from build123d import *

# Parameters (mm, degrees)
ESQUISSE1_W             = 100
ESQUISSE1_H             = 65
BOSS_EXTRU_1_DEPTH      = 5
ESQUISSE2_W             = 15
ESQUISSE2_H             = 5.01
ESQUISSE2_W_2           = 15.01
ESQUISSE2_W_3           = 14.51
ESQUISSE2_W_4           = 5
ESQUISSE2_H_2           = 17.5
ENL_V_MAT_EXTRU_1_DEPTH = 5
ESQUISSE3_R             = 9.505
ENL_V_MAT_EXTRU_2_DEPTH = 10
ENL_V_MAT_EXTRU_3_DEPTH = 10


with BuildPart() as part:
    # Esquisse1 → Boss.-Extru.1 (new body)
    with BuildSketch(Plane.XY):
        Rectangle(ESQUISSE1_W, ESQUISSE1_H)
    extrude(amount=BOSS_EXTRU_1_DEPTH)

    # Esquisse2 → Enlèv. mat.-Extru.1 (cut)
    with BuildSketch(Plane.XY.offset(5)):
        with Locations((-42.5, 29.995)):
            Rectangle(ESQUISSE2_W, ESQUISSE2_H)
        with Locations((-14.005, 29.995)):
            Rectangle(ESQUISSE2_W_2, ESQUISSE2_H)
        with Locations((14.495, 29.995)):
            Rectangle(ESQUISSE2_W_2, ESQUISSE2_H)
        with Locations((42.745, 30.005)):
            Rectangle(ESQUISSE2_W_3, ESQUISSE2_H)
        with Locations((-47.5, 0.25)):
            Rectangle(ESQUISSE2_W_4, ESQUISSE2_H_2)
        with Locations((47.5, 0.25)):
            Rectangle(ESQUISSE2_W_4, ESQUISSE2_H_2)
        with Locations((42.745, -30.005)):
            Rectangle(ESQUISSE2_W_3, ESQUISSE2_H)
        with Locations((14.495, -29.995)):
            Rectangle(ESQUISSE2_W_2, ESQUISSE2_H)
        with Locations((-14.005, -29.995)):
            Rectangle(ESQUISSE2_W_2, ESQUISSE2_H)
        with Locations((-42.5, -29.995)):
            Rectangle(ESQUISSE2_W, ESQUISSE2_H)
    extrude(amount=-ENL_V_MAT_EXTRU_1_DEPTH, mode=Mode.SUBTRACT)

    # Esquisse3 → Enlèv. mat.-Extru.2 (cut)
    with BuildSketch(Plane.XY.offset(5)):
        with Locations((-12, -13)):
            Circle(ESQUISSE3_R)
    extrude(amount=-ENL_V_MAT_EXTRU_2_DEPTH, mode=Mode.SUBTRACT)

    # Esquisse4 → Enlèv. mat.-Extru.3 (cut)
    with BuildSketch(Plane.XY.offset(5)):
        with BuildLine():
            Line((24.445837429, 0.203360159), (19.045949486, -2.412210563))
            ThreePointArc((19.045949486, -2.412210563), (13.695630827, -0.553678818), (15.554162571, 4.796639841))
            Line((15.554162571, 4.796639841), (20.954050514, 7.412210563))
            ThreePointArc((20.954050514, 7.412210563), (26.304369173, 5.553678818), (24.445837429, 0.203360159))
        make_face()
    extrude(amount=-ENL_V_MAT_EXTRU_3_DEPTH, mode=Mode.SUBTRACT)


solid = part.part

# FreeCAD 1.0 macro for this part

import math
import FreeCAD as App
import Part
import Sketcher


def add_polygon(sketch, points):
    """Adds a closed chain of lines whose ends are joined by coincident constraints."""
    first, n = sketch.GeometryCount, len(points)
    for a, b in zip(points, points[1:] + points[:1]):
        sketch.addGeometry(Part.LineSegment(App.Vector(*a, 0), App.Vector(*b, 0)), False)
    for i in range(n):
        sketch.addConstraint(Sketcher.Constraint("Coincident", first + i, 2, first + (i + 1) % n, 1))

doc = App.newDocument("Part")
body = doc.addObject("PartDesign::Body", "Body")

# Sketch on XY plane
sketch1 = body.newObject("Sketcher::SketchObject", "Sketch")
sketch1.AttachmentSupport = (doc.getObject("XY_Plane"), [""])
sketch1.MapMode = "FlatFace"
add_polygon(sketch1, [(-50, 32.5), (-50, -32.5), (50, -32.5), (50, 32.5)])  # lines 0-3
sketch1.addConstraint(Sketcher.Constraint("Vertical", 0))
sketch1.addConstraint(Sketcher.Constraint("Horizontal", 1))
sketch1.addConstraint(Sketcher.Constraint("Vertical", 2))
sketch1.addConstraint(Sketcher.Constraint("Horizontal", 3))
sketch1.addConstraint(Sketcher.Constraint("Symmetric", 0, 2, 2, 2, -1, 1))
sketch1.addConstraint(Sketcher.Constraint("DistanceX", 1, 1, 1, 2, 100.0))
sketch1.addConstraint(Sketcher.Constraint("DistanceY", 0, 2, 0, 1, 65.0))
pad1 = body.newObject("PartDesign::Pad", "Pad")
pad1.Profile = sketch1
pad1.Length = 5

# Sketch on XY plane
sketch2 = body.newObject("Sketcher::SketchObject", "Sketch001")
sketch2.AttachmentSupport = (doc.getObject("XY_Plane"), [""])
sketch2.MapMode = "FlatFace"
sketch2.AttachmentOffset = App.Placement(App.Vector(0, 0, 5), App.Rotation())
add_polygon(sketch2, [(-50, 32.5), (-50, 27.49), (-35, 27.49), (-35, 32.5)])  # lines 0-3
add_polygon(sketch2, [(-21.51, 32.5), (-21.51, 27.49), (-6.5, 27.49), (-6.5, 32.5)])  # lines 4-7
add_polygon(sketch2, [(6.99, 32.5), (6.99, 27.49), (22, 27.49), (22, 32.5)])  # lines 8-11
add_polygon(sketch2, [(35.49, 32.51), (35.49, 27.5), (50, 27.5), (50, 32.51)])  # lines 12-15
add_polygon(sketch2, [(-50, 9), (-50, -8.5), (-45, -8.5), (-45, 9)])  # lines 16-19
add_polygon(sketch2, [(45, 9), (45, -8.5), (50, -8.5), (50, 9)])  # lines 20-23
add_polygon(sketch2, [(35.49, -27.5), (35.49, -32.51), (50, -32.51), (50, -27.5)])  # lines 24-27
add_polygon(sketch2, [(6.99, -27.49), (6.99, -32.5), (22, -32.5), (22, -27.49)])  # lines 28-31
add_polygon(sketch2, [(-21.51, -27.49), (-21.51, -32.5), (-6.5, -32.5), (-6.5, -27.49)])  # lines 32-35
add_polygon(sketch2, [(-50, -27.49), (-50, -32.5), (-35, -32.5), (-35, -27.49)])  # lines 36-39
sketch2.addConstraint(Sketcher.Constraint("Vertical", 0))
sketch2.addConstraint(Sketcher.Constraint("Horizontal", 1))
sketch2.addConstraint(Sketcher.Constraint("Vertical", 2))
sketch2.addConstraint(Sketcher.Constraint("Horizontal", 3))
sketch2.addConstraint(Sketcher.Constraint("Vertical", 4))
sketch2.addConstraint(Sketcher.Constraint("Horizontal", 5))
sketch2.addConstraint(Sketcher.Constraint("Vertical", 6))
sketch2.addConstraint(Sketcher.Constraint("Horizontal", 7))
sketch2.addConstraint(Sketcher.Constraint("Vertical", 8))
sketch2.addConstraint(Sketcher.Constraint("Horizontal", 9))
sketch2.addConstraint(Sketcher.Constraint("Vertical", 10))
sketch2.addConstraint(Sketcher.Constraint("Horizontal", 11))
sketch2.addConstraint(Sketcher.Constraint("Vertical", 12))
sketch2.addConstraint(Sketcher.Constraint("Horizontal", 13))
sketch2.addConstraint(Sketcher.Constraint("Vertical", 14))
sketch2.addConstraint(Sketcher.Constraint("Horizontal", 15))
sketch2.addConstraint(Sketcher.Constraint("Vertical", 16))
sketch2.addConstraint(Sketcher.Constraint("Horizontal", 17))
sketch2.addConstraint(Sketcher.Constraint("Vertical", 18))
sketch2.addConstraint(Sketcher.Constraint("Horizontal", 19))
sketch2.addConstraint(Sketcher.Constraint("Vertical", 20))
sketch2.addConstraint(Sketcher.Constraint("Horizontal", 21))
sketch2.addConstraint(Sketcher.Constraint("Vertical", 22))
sketch2.addConstraint(Sketcher.Constraint("Horizontal", 23))
sketch2.addConstraint(Sketcher.Constraint("Vertical", 24))
sketch2.addConstraint(Sketcher.Constraint("Horizontal", 25))
sketch2.addConstraint(Sketcher.Constraint("Vertical", 26))
sketch2.addConstraint(Sketcher.Constraint("Horizontal", 27))
sketch2.addConstraint(Sketcher.Constraint("Vertical", 28))
sketch2.addConstraint(Sketcher.Constraint("Horizontal", 29))
sketch2.addConstraint(Sketcher.Constraint("Vertical", 30))
sketch2.addConstraint(Sketcher.Constraint("Horizontal", 31))
sketch2.addConstraint(Sketcher.Constraint("Vertical", 32))
sketch2.addConstraint(Sketcher.Constraint("Horizontal", 33))
sketch2.addConstraint(Sketcher.Constraint("Vertical", 34))
sketch2.addConstraint(Sketcher.Constraint("Horizontal", 35))
sketch2.addConstraint(Sketcher.Constraint("Vertical", 36))
sketch2.addConstraint(Sketcher.Constraint("Horizontal", 37))
sketch2.addConstraint(Sketcher.Constraint("Vertical", 38))
sketch2.addConstraint(Sketcher.Constraint("Horizontal", 39))
sketch2.addConstraint(Sketcher.Constraint("Symmetric", 17, 2, 20, 2, -2))
sketch2.addConstraint(Sketcher.Constraint("Symmetric", 19, 2, 22, 2, -2))
sketch2.addConstraint(Sketcher.Constraint("Symmetric", 15, 2, 24, 2, -1))
sketch2.addConstraint(Sketcher.Constraint("Symmetric", 13, 2, 26, 2, -1))
sketch2.addConstraint(Sketcher.Constraint("Symmetric", 11, 2, 28, 2, -1))
sketch2.addConstraint(Sketcher.Constraint("Symmetric", 9, 2, 30, 2, -1))
sketch2.addConstraint(Sketcher.Constraint("Symmetric", 7, 2, 32, 2, -1))
sketch2.addConstraint(Sketcher.Constraint("Symmetric", 5, 2, 34, 2, -1))
sketch2.addConstraint(Sketcher.Constraint("Symmetric", 3, 2, 36, 2, -1))
sketch2.addConstraint(Sketcher.Constraint("Symmetric", 1, 2, 38, 2, -1))
sketch2.addConstraint(Sketcher.Constraint("Horizontal", 1, 2, 4, 2))
sketch2.addConstraint(Sketcher.Constraint("Horizontal", 3, 2, 6, 2))
sketch2.addConstraint(Sketcher.Constraint("Horizontal", 5, 2, 8, 2))
sketch2.addConstraint(Sketcher.Constraint("Horizontal", 7, 2, 10, 2))
sketch2.addConstraint(Sketcher.Constraint("Vertical", 3, 2, 16, 2))
sketch2.addConstraint(Sketcher.Constraint("Vertical", 14, 2, 21, 2))
sketch2.addConstraint(Sketcher.Constraint("Equal", 7, 9))
sketch2.addConstraint(Sketcher.Constraint("Equal", 10, 12))
sketch2.addConstraint(Sketcher.Constraint("DistanceX", 1, 1, 1, 2, 15.0))
sketch2.addConstraint(Sketcher.Constraint("DistanceX", 17, 1, 17, 2, 5.0))
sketch2.addConstraint(Sketcher.Constraint("DistanceY", 16, 2, 16, 1, 17.5))
sketch2.addConstraint(Sketcher.Constraint("DistanceX", 0, 2, -1, 1, 50.0))
sketch2.addConstraint(Sketcher.Constraint("DistanceX", -1, 1, 9, 2, 22.0))
sketch2.addConstraint(Sketcher.Constraint("DistanceY", -1, 1, 18, 2, 9.0))
sketch2.addConstraint(Sketcher.Constraint("DistanceY", 12, 2, 10, 2, 5.0))
sketch2.addConstraint(Sketcher.Constraint("DistanceY", 16, 2, 3, 2, 41.0))
sketch2.addConstraint(Sketcher.Constraint("DistanceX", 5, 1, 5, 2, 15.01))
sketch2.addConstraint(Sketcher.Constraint("DistanceX", 13, 1, 13, 2, 14.51))
sketch2.addConstraint(Sketcher.Constraint("DistanceY", 0, 2, 0, 1, 5.01))
sketch2.addConstraint(Sketcher.Constraint("DistanceX", 5, 2, -1, 1, 6.5))
pocket1 = body.newObject("PartDesign::Pocket", "Pocket")
pocket1.Profile = sketch2
pocket1.Length = 5

# Sketch on XY plane
sketch3 = body.newObject("Sketcher::SketchObject", "Sketch002")
sketch3.AttachmentSupport = (doc.getObject("XY_Plane"), [""])
sketch3.MapMode = "FlatFace"
sketch3.AttachmentOffset = App.Placement(App.Vector(0, 0, 5), App.Rotation())
sketch3.addGeometry(Part.Circle(App.Vector(-12, -13, 0), App.Vector(0, 0, 1), 9.505), False)
sketch3.addConstraint(Sketcher.Constraint("Diameter", 0, 19.01))
sketch3.addConstraint(Sketcher.Constraint("DistanceX", 0, 3, -1, 1, 12.0))
sketch3.addConstraint(Sketcher.Constraint("DistanceY", 0, 3, -1, 1, 13.0))
pocket2 = body.newObject("PartDesign::Pocket", "Pocket001")
pocket2.Profile = sketch3
pocket2.Length = 10

# Sketch on XY plane
sketch4 = body.newObject("Sketcher::SketchObject", "Sketch003")
sketch4.AttachmentSupport = (doc.getObject("XY_Plane"), [""])
sketch4.MapMode = "FlatFace"
sketch4.AttachmentOffset = App.Placement(App.Vector(0, 0, 5), App.Rotation())
sketch4.addGeometry(Part.LineSegment(App.Vector(19.045949, -2.412211, 0), App.Vector(24.445837, 0.20336, 0)), False)
sketch4.addGeometry(Part.ArcOfCircle(Part.Circle(App.Vector(22.699944, 3.807785, 0), App.Vector(0, 0, 1), 4.005), math.radians(-64.155612), math.radians(115.844388)), False)
sketch4.addGeometry(Part.LineSegment(App.Vector(20.954051, 7.412211, 0), App.Vector(15.554163, 4.79664, 0)), False)
sketch4.addGeometry(Part.ArcOfCircle(Part.Circle(App.Vector(17.300056, 1.192215, 0), App.Vector(0, 0, 1), 4.005), math.radians(115.844388), math.radians(295.844388)), False)
sketch4.addConstraint(Sketcher.Constraint("Tangent", 0, 2, 1, 1))
sketch4.addConstraint(Sketcher.Constraint("Tangent", 1, 2, 2, 1))
sketch4.addConstraint(Sketcher.Constraint("Tangent", 2, 2, 3, 1))
sketch4.addConstraint(Sketcher.Constraint("Tangent", 3, 2, 0, 1))
sketch4.addConstraint(Sketcher.Constraint("Equal", 1, 3))
sketch4.addConstraint(Sketcher.Constraint("Distance", 0, 6.0))
sketch4.addConstraint(Sketcher.Constraint("Radius", 1, 4.005))
sketch4.addConstraint(Sketcher.Constraint("DistanceX", 3, 2, 1, 2, 1.908101))
sketch4.addConstraint(Sketcher.Constraint("DistanceY", -1, 1, 0, 2, 0.20336))
sketch4.addConstraint(Sketcher.Constraint("DistanceX", -1, 1, 1, 2, 20.954051))
pocket3 = body.newObject("PartDesign::Pocket", "Pocket002")
pocket3.Profile = sketch4
pocket3.Length = 10

doc.recompute()
